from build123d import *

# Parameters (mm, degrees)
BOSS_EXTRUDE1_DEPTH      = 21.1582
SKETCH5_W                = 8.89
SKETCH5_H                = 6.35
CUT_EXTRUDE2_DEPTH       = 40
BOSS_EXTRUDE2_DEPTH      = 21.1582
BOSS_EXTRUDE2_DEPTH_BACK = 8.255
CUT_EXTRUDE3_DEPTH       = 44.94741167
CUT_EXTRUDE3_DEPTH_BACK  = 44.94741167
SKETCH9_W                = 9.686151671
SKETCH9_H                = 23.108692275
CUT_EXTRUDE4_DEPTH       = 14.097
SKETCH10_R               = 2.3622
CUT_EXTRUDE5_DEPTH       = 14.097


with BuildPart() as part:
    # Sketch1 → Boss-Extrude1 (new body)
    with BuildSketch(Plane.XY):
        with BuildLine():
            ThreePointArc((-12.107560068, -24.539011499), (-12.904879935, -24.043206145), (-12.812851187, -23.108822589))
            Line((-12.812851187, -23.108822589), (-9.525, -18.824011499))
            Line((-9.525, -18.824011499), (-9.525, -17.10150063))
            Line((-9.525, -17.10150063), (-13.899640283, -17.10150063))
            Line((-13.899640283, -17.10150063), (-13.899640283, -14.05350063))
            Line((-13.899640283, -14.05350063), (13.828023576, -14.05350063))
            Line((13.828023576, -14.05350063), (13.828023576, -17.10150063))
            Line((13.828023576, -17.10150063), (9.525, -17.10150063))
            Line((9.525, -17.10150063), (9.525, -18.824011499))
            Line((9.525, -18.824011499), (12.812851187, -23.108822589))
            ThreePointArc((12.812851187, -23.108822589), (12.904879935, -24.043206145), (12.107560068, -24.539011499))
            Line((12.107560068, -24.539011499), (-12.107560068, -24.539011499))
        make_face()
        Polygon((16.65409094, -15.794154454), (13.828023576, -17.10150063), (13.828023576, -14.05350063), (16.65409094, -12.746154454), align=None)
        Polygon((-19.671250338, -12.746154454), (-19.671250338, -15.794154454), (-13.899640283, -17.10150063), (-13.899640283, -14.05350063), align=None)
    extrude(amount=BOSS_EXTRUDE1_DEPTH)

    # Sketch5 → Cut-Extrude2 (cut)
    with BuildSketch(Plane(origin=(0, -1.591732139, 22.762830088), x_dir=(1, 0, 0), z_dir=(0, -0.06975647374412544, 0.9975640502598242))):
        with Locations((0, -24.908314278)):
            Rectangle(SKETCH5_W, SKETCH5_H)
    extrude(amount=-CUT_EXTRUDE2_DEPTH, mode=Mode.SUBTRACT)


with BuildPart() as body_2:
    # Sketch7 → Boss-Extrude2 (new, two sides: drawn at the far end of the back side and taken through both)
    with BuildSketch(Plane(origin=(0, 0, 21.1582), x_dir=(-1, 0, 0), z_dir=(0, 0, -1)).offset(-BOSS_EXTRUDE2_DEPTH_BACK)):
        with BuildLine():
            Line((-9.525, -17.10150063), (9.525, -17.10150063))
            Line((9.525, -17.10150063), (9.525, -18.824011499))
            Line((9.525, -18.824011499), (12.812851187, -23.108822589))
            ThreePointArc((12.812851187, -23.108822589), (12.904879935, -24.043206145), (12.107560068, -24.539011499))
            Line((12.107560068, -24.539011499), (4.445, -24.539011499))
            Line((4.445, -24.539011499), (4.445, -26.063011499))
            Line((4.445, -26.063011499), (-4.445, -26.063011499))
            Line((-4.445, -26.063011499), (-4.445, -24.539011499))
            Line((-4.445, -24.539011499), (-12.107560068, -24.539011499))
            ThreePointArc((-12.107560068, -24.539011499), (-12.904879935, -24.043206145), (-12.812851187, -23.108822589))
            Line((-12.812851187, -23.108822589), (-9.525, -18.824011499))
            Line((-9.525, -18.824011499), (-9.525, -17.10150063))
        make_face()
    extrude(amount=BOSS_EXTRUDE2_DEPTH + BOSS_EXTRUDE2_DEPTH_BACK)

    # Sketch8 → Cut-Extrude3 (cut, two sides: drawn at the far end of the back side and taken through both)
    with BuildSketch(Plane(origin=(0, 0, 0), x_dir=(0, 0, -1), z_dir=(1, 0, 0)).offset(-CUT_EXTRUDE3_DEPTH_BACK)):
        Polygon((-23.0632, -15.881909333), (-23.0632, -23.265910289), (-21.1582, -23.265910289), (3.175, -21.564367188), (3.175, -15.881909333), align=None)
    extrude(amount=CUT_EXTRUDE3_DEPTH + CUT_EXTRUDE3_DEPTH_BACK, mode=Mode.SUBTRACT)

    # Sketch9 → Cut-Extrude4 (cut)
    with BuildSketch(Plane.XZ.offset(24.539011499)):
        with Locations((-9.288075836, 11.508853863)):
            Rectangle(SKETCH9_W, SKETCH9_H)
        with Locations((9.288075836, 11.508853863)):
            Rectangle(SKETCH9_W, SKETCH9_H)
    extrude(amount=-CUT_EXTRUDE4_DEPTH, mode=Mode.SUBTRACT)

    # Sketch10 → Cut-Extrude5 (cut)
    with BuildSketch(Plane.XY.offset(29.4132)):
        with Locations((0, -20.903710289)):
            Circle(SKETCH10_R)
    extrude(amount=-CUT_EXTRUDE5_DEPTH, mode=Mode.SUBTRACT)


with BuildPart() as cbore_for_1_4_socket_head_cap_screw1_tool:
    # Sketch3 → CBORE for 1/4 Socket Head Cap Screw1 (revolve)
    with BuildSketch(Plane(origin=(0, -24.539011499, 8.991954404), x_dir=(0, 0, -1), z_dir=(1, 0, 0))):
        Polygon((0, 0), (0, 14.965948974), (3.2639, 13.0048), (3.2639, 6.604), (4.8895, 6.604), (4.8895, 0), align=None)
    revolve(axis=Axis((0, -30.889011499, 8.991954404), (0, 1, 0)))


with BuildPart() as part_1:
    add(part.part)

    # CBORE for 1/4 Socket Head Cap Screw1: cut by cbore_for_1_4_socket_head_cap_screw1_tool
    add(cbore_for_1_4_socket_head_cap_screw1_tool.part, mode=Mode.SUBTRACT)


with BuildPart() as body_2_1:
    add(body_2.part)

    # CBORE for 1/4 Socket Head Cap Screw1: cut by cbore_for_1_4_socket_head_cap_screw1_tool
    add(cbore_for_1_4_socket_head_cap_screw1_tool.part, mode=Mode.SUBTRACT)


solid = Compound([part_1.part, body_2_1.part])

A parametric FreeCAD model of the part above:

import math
import FreeCAD as App
import Part
import Sketcher
Q = App.Units.Quantity


def add_polygon(sketch, points):
    """Adds a closed chain of lines whose ends are joined by coincident constraints."""
    first, n = sketch.GeometryCount, len(points)
    for a, b in zip(points, points[1:] + points[:1]):
        sketch.addGeometry(Part.LineSegment(App.Vector(*a, 0), App.Vector(*b, 0)), False)
    for i in range(n):
        sketch.addConstraint(Sketcher.Constraint("Coincident", first + i, 2, first + (i + 1) % n, 1))

doc = App.newDocument("Part")
body = doc.addObject("PartDesign::Body", "Body")

# Sketch on XY plane
sketch1 = doc.addObject("Sketcher::SketchObject", "Sketch")
body.addObject(sketch1)
sketch1.AttachmentSupport = (doc.XY_Plane, [""])
sketch1.MapMode = "FlatFace"
sketch1.addGeometry(Part.ArcOfCircle(Part.Circle(App.Vector(-12.1, -23.7, 0), App.Vector(0, 0, 1), 0.9), math.radians(142), math.radians(270)), False)
sketch1.addGeometry(Part.LineSegment(App.Vector(-12.1, -24.5, 0), App.Vector(12.1, -24.5, 0)), False)
sketch1.addGeometry(Part.ArcOfCircle(Part.Circle(App.Vector(12.1, -23.7, 0), App.Vector(0, 0, 1), 0.9), math.radians(-90), math.radians(38)), False)
sketch1.addGeometry(Part.LineSegment(App.Vector(12.8, -23.1, 0), App.Vector(9.5, -18.8, 0)), False)
sketch1.addGeometry(Part.LineSegment(App.Vector(9.5, -18.8, 0), App.Vector(9.5, -17.1, 0)), False)
sketch1.addGeometry(Part.LineSegment(App.Vector(9.5, -17.1, 0), App.Vector(13.8, -17.1, 0)), False)
sketch1.addGeometry(Part.LineSegment(App.Vector(13.8, -17.1, 0), App.Vector(16.7, -15.8, 0)), False)
sketch1.addGeometry(Part.LineSegment(App.Vector(16.7, -15.8, 0), App.Vector(16.7, -12.7, 0)), False)
sketch1.addGeometry(Part.LineSegment(App.Vector(16.7, -12.7, 0), App.Vector(13.8, -14.1, 0)), False)
sketch1.addGeometry(Part.LineSegment(App.Vector(13.8, -14.1, 0), App.Vector(-13.9, -14.1, 0)), False)
sketch1.addGeometry(Part.LineSegment(App.Vector(-13.9, -14.1, 0), App.Vector(-19.7, -12.7, 0)), False)
sketch1.addGeometry(Part.LineSegment(App.Vector(-19.7, -12.7, 0), App.Vector(-19.7, -15.8, 0)), False)
sketch1.addGeometry(Part.LineSegment(App.Vector(-19.7, -15.8, 0), App.Vector(-13.9, -17.1, 0)), False)
sketch1.addGeometry(Part.LineSegment(App.Vector(-13.9, -17.1, 0), App.Vector(-9.5, -17.1, 0)), False)
sketch1.addGeometry(Part.LineSegment(App.Vector(-9.5, -17.1, 0), App.Vector(-9.5, -18.8, 0)), False)
sketch1.addGeometry(Part.LineSegment(App.Vector(-9.5, -18.8, 0), App.Vector(-12.8, -23.1, 0)), False)
sketch1.addConstraint(Sketcher.Constraint("Tangent", 0, 2, 1, 1))
sketch1.addConstraint(Sketcher.Constraint("Tangent", 1, 2, 2, 1))
sketch1.addConstraint(Sketcher.Constraint("Tangent", 2, 2, 3, 1))
sketch1.addConstraint(Sketcher.Constraint("Coincident", 3, 2, 4, 1))
sketch1.addConstraint(Sketcher.Constraint("Coincident", 4, 2, 5, 1))
sketch1.addConstraint(Sketcher.Constraint("Coincident", 5, 2, 6, 1))
sketch1.addConstraint(Sketcher.Constraint("Coincident", 6, 2, 7, 1))
sketch1.addConstraint(Sketcher.Constraint("Coincident", 7, 2, 8, 1))
sketch1.addConstraint(Sketcher.Constraint("Coincident", 8, 2, 9, 1))
sketch1.addConstraint(Sketcher.Constraint("Coincident", 9, 2, 10, 1))
sketch1.addConstraint(Sketcher.Constraint("Coincident", 10, 2, 11, 1))
sketch1.addConstraint(Sketcher.Constraint("Coincident", 11, 2, 12, 1))
sketch1.addConstraint(Sketcher.Constraint("Coincident", 12, 2, 13, 1))
sketch1.addConstraint(Sketcher.Constraint("Coincident", 13, 2, 14, 1))
sketch1.addConstraint(Sketcher.Constraint("Coincident", 14, 2, 15, 1))
sketch1.addConstraint(Sketcher.Constraint("Tangent", 15, 2, 0, 1))
sketch1.addConstraint(Sketcher.Constraint("Horizontal", 1))
sketch1.addConstraint(Sketcher.Constraint("Vertical", 4))
sketch1.addConstraint(Sketcher.Constraint("Horizontal", 5))
sketch1.addConstraint(Sketcher.Constraint("Vertical", 7))
sketch1.addConstraint(Sketcher.Constraint("Horizontal", 9))
sketch1.addConstraint(Sketcher.Constraint("Vertical", 11))
sketch1.addConstraint(Sketcher.Constraint("Horizontal", 13))
sketch1.addConstraint(Sketcher.Constraint("Vertical", 14))
sketch1.addConstraint(Sketcher.Constraint("Equal", 0, 2))
sketch1.addConstraint(Sketcher.Constraint("Symmetric", 4, 2, 13, 2, -2))
sketch1.addConstraint(Sketcher.Constraint("Symmetric", 2, 2, 15, 2, -2))
sketch1.addConstraint(Sketcher.Constraint("Parallel", 6, 8))
sketch1.addConstraint(Sketcher.Constraint("Parallel", 10, 12))
sketch1.addConstraint(Sketcher.Constraint("Horizontal", 7, 2, 10, 2))
sketch1.addConstraint(Sketcher.Constraint("Horizontal", 6, 2, 11, 2))
sketch1.addConstraint(Sketcher.Constraint("Vertical", 5, 2, 8, 2))
sketch1.addConstraint(Sketcher.Constraint("Radius", 0, Q("0.035 in")))
sketch1.addConstraint(Sketcher.Constraint("DistanceY", 7, 1, 7, 2, Q("0.12 in")))
sketch1.addConstraint(Sketcher.Constraint("Angle", 3, Q("127.5 deg")))
sketch1.addConstraint(Sketcher.Constraint("DistanceY", 2, 3, 3, 2, Q("0.19 in")))
sketch1.addConstraint(Sketcher.Constraint("DistanceX", -1, 1, 3, 2, Q("0.375 in")))
sketch1.addConstraint(Sketcher.Constraint("DistanceX", 13, 1, 13, 2, Q("4.37464 mm")))
sketch1.addConstraint(Sketcher.Constraint("DistanceY", 4, 1, 4, 2, Q("1.722511 mm")))
sketch1.addConstraint(Sketcher.Constraint("DistanceY", 4, 2, -1, 1, Q("17.101501 mm")))
sketch1.addConstraint(Sketcher.Constraint("Distance", 6, Q("3.11381 mm")))
sketch1.addConstraint(Sketcher.Constraint("DistanceX", 5, 1, 5, 2, Q("4.303024 mm")))
sketch1.addConstraint(Sketcher.Constraint("DistanceX", -1, 1, 6, 2, Q("16.654091 mm")))
sketch1.addConstraint(Sketcher.Constraint("DistanceX", 10, 2, -1, 1, Q("19.67125 mm")))
pad1 = doc.addObject("PartDesign::Pad", "Pad")
body.addObject(pad1)
pad1.Profile = sketch1
pad1.Length = Q("0.833 in")

# Sketch on an angled plane
sketch2 = doc.addObject("Sketcher::SketchObject", "Sketch001")
body.addObject(sketch2)
sketch2.Placement = App.Placement(App.Vector(0, -1.591732, 22.76283), App.Rotation(App.Vector(1, 0, 0), App.Vector(0, 0.99756405, 0.069756474), App.Vector(0, -0.069756474, 0.99756405), "ZXY"))
add_polygon(sketch2, [(-4, -22), (-4, -28), (4, -28), (4, -22)])  # lines 0-3
sketch2.addConstraint(Sketcher.Constraint("Vertical", 0))
sketch2.addConstraint(Sketcher.Constraint("Horizontal", 1))
sketch2.addConstraint(Sketcher.Constraint("Vertical", 2))
sketch2.addConstraint(Sketcher.Constraint("Horizontal", 3))
sketch2.addConstraint(Sketcher.Constraint("DistanceX", 1, 1, 1, 2, Q("0.35 in")))
sketch2.addConstraint(Sketcher.Constraint("DistanceY", 0, 2, 0, 1, Q("0.25 in")))
sketch2.addConstraint(Sketcher.Constraint("DistanceX", 0, 2, -1, 1, Q("0.175 in")))
sketch2.addConstraint(Sketcher.Constraint("DistanceY", 0, 2, -1, 1, Q("28.083314 mm")))
pocket1 = doc.addObject("PartDesign::Pocket", "Pocket")
body.addObject(pocket1)
pocket1.Profile = sketch2
pocket1.Length = 40
body2 = doc.addObject("PartDesign::Body", "Body001")

# Sketch on XY plane
sketch3 = doc.addObject("Sketcher::SketchObject", "Sketch002")
body2.addObject(sketch3)
sketch3.AttachmentSupport = (doc.getObject("XY_Plane001"), [""])
sketch3.MapMode = "FlatFace"
sketch3.AttachmentOffset = App.Placement(App.Vector(0, 0, 0.833 * 25.4), App.Rotation())
sketch3.addGeometry(Part.LineSegment(App.Vector(-9.5, -17.1, 0), App.Vector(9.5, -17.1, 0)), False)
sketch3.addGeometry(Part.LineSegment(App.Vector(9.5, -17.1, 0), App.Vector(9.5, -18.8, 0)), False)
sketch3.addGeometry(Part.LineSegment(App.Vector(9.5, -18.8, 0), App.Vector(12.8, -23.1, 0)), False)
sketch3.addGeometry(Part.ArcOfCircle(Part.Circle(App.Vector(12.1, -23.7, 0), App.Vector(0, 0, 1), 0.9), math.radians(-90), math.radians(38)), False)
sketch3.addGeometry(Part.LineSegment(App.Vector(12.1, -24.5, 0), App.Vector(4.4, -24.5, 0)), False)
sketch3.addGeometry(Part.LineSegment(App.Vector(4.4, -24.5, 0), App.Vector(4.4, -26.1, 0)), False)
sketch3.addGeometry(Part.LineSegment(App.Vector(4.4, -26.1, 0), App.Vector(-4.4, -26.1, 0)), False)
sketch3.addGeometry(Part.LineSegment(App.Vector(-4.4, -26.1, 0), App.Vector(-4.4, -24.5, 0)), False)
sketch3.addGeometry(Part.LineSegment(App.Vector(-4.4, -24.5, 0), App.Vector(-12.1, -24.5, 0)), False)
sketch3.addGeometry(Part.ArcOfCircle(Part.Circle(App.Vector(-12.1, -23.7, 0), App.Vector(0, 0, 1), 0.9), math.radians(142), math.radians(270)), False)
sketch3.addGeometry(Part.LineSegment(App.Vector(-12.8, -23.1, 0), App.Vector(-9.5, -18.8, 0)), False)
sketch3.addGeometry(Part.LineSegment(App.Vector(-9.5, -18.8, 0), App.Vector(-9.5, -17.1, 0)), False)
sketch3.addConstraint(Sketcher.Constraint("Coincident", 0, 2, 1, 1))
sketch3.addConstraint(Sketcher.Constraint("Coincident", 1, 2, 2, 1))
sketch3.addConstraint(Sketcher.Constraint("Tangent", 2, 2, 3, 2))
sketch3.addConstraint(Sketcher.Constraint("Tangent", 3, 1, 4, 1))
sketch3.addConstraint(Sketcher.Constraint("Coincident", 4, 2, 5, 1))
sketch3.addConstraint(Sketcher.Constraint("Coincident", 5, 2, 6, 1))
sketch3.addConstraint(Sketcher.Constraint("Coincident", 6, 2, 7, 1))
sketch3.addConstraint(Sketcher.Constraint("Coincident", 7, 2, 8, 1))
sketch3.addConstraint(Sketcher.Constraint("Tangent", 8, 2, 9, 2))
sketch3.addConstraint(Sketcher.Constraint("Tangent", 9, 1, 10, 1))
sketch3.addConstraint(Sketcher.Constraint("Coincident", 10, 2, 11, 1))
sketch3.addConstraint(Sketcher.Constraint("Coincident", 11, 2, 0, 1))
sketch3.addConstraint(Sketcher.Constraint("Horizontal", 0))
sketch3.addConstraint(Sketcher.Constraint("Vertical", 1))
sketch3.addConstraint(Sketcher.Constraint("Horizontal", 4))
sketch3.addConstraint(Sketcher.Constraint("Vertical", 5))
sketch3.addConstraint(Sketcher.Constraint("Horizontal", 6))
sketch3.addConstraint(Sketcher.Constraint("Vertical", 7))
sketch3.addConstraint(Sketcher.Constraint("Horizontal", 8))
sketch3.addConstraint(Sketcher.Constraint("Vertical", 11))
sketch3.addConstraint(Sketcher.Constraint("Equal", 3, 9))
sketch3.addConstraint(Sketcher.Constraint("Symmetric", 3, 3, 9, 3, -2))
sketch3.addConstraint(Sketcher.Constraint("Symmetric", 1, 2, 10, 2, -2))
sketch3.addConstraint(Sketcher.Constraint("Equal", 4, 8))
sketch3.addConstraint(Sketcher.Constraint("Radius", 3, Q("0.035 in")))
sketch3.addConstraint(Sketcher.Constraint("DistanceX", 0, 1, 0, 2, Q("0.75 in")))
sketch3.addConstraint(Sketcher.Constraint("DistanceX", 6, 2, 6, 1, Q("0.35 in")))
sketch3.addConstraint(Sketcher.Constraint("DistanceY", 5, 2, 5, 1, Q("0.06 in")))
sketch3.addConstraint(Sketcher.Constraint("Angle", 2, Q("-52.5 deg")))
sketch3.addConstraint(Sketcher.Constraint("DistanceY", 3, 3, 1, 2, Q("0.19 in")))
sketch3.addConstraint(Sketcher.Constraint("DistanceY", 1, 2, 1, 1, Q("1.722511 mm")))
sketch3.addConstraint(Sketcher.Constraint("DistanceY", 0, 2, -1, 1, Q("17.101501 mm")))
pad2 = doc.addObject("PartDesign::Pad", "Pad001")
body2.addObject(pad2)
pad2.Profile = sketch3
pad2.Type = "TwoLengths"
pad2.Length = Q("0.833 in")
pad2.Length2 = Q("0.325 in")
pad2.Reversed = True

# Sketch on YZ plane
sketch4 = doc.addObject("Sketcher::SketchObject", "Sketch003")
body2.addObject(sketch4)
sketch4.AttachmentSupport = (doc.getObject("YZ_Plane001"), [""])
sketch4.MapMode = "FlatFace"
add_polygon(sketch4, [(-15.9, 23.1), (-23.3, 23.1), (-23.3, 21.2), (-21.6, -3.2), (-15.9, -3.2)])  # lines 0-4
sketch4.addConstraint(Sketcher.Constraint("Horizontal", 0))
sketch4.addConstraint(Sketcher.Constraint("Vertical", 1))
sketch4.addConstraint(Sketcher.Constraint("Horizontal", 3))
sketch4.addConstraint(Sketcher.Constraint("Vertical", 4))
sketch4.addConstraint(Sketcher.Constraint("Angle", 2, Q("-86 deg")))
sketch4.addConstraint(Sketcher.Constraint("DistanceY", 1, 2, 1, 1, Q("0.075 in")))
sketch4.addConstraint(Sketcher.Constraint("DistanceY", 4, 1, 4, 2, Q("1.033 in")))
sketch4.addConstraint(Sketcher.Constraint("DistanceY", -1, 1, 0, 2, Q("0.908 in")))
sketch4.addConstraint(Sketcher.Constraint("DistanceX", 0, 2, 0, 1, Q("7.384001 mm")))
sketch4.addConstraint(Sketcher.Constraint("DistanceX", 0, 2, -1, 1, Q("23.26591 mm")))
pocket2 = doc.addObject("PartDesign::Pocket", "Pocket001")
body2.addObject(pocket2)
pocket2.Profile = sketch4
pocket2.Type = "ThroughAll"
pocket2.Midplane = True

# Sketch on XZ plane
sketch5 = doc.addObject("Sketcher::SketchObject", "Sketch004")
body2.addObject(sketch5)
sketch5.AttachmentSupport = (doc.getObject("XZ_Plane001"), [""])
sketch5.MapMode = "FlatFace"
sketch5.AttachmentOffset = App.Placement(App.Vector(0, 0, 24.539011), App.Rotation())
add_polygon(sketch5, [(-14, 23), (-14, 0), (-4, 0), (-4, 23)])  # lines 0-3
add_polygon(sketch5, [(4, 23), (4, 0), (14, 0), (14, 23)])  # lines 4-7
sketch5.addConstraint(Sketcher.Constraint("Vertical", 0))
sketch5.addConstraint(Sketcher.Constraint("Horizontal", 1))
sketch5.addConstraint(Sketcher.Constraint("Vertical", 2))
sketch5.addConstraint(Sketcher.Constraint("Horizontal", 3))
sketch5.addConstraint(Sketcher.Constraint("Vertical", 4))
sketch5.addConstraint(Sketcher.Constraint("Horizontal", 5))
sketch5.addConstraint(Sketcher.Constraint("Vertical", 6))
sketch5.addConstraint(Sketcher.Constraint("Horizontal", 7))
sketch5.addConstraint(Sketcher.Constraint("Symmetric", 1, 2, 4, 2, -2))
sketch5.addConstraint(Sketcher.Constraint("Symmetric", 3, 2, 6, 2, -2))
sketch5.addConstraint(Sketcher.Constraint("DistanceX", 1, 2, 4, 2, Q("0.35 in")))
sketch5.addConstraint(Sketcher.Constraint("DistanceY", -1, 1, 2, 2, Q("0.908 in")))
sketch5.addConstraint(Sketcher.Constraint("DistanceX", 1, 1, 1, 2, Q("9.686152 mm")))
sketch5.addConstraint(Sketcher.Constraint("DistanceY", 0, 2, 0, 1, Q("23.108692 mm")))
pocket3 = doc.addObject("PartDesign::Pocket", "Pocket002")
body2.addObject(pocket3)
pocket3.Profile = sketch5
pocket3.Length = Q("0.555 in")

# Sketch on XY plane
sketch6 = doc.addObject("Sketcher::SketchObject", "Sketch005")
body2.addObject(sketch6)
sketch6.AttachmentSupport = (doc.getObject("XY_Plane001"), [""])
sketch6.MapMode = "FlatFace"
sketch6.AttachmentOffset = App.Placement(App.Vector(0, 0, 1.158 * 25.4), App.Rotation())
sketch6.addGeometry(Part.Circle(App.Vector(0, -20.9, 0), App.Vector(0, 0, 1), 2.4), False)
sketch6.addConstraint(Sketcher.Constraint("PointOnObject", 0, 3, -2))
sketch6.addConstraint(Sketcher.Constraint("Diameter", 0, Q("0.186 in")))
sketch6.addConstraint(Sketcher.Constraint("DistanceY", 0, 3, -1, 1, Q("20.90371 mm")))
pocket4 = doc.addObject("PartDesign::Pocket", "Pocket003")
body2.addObject(pocket4)
pocket4.Profile = sketch6
pocket4.Length = Q("0.555 in")
body3 = doc.addObject("PartDesign::Body", "Body002")

# Sketch on YZ plane
sketch7 = doc.addObject("Sketcher::SketchObject", "Sketch006")
body3.addObject(sketch7)
sketch7.AttachmentSupport = (doc.getObject("YZ_Plane002"), [""])
sketch7.MapMode = "FlatFace"
add_polygon(sketch7, [(-9.6, 9), (-24.5, 9), (-24.5, 4.1), (-17.9, 4.1), (-17.9, 5.7), (-11.5, 5.7)])  # lines 0-5
sketch7.addGeometry(Part.LineSegment(App.Vector(-24.5, 9, 0), App.Vector(-9.6, 9, 0)), True)  # axis
sketch7.addConstraint(Sketcher.Constraint("Horizontal", 0))
sketch7.addConstraint(Sketcher.Constraint("Vertical", 1))
sketch7.addConstraint(Sketcher.Constraint("Horizontal", 2))
sketch7.addConstraint(Sketcher.Constraint("Vertical", 3))
sketch7.addConstraint(Sketcher.Constraint("Horizontal", 4))
sketch7.addConstraint(Sketcher.Constraint("Horizontal", 6))
sketch7.addConstraint(Sketcher.Constraint("Coincident", 6, 1, 0, 2))
sketch7.addConstraint(Sketcher.Constraint("Equal", 0, 6))
sketch7.addConstraint(Sketcher.Constraint("Angle", 5, Q("59 deg")))
sketch7.addConstraint(Sketcher.Constraint("DistanceX", 2, 1, 2, 2, Q("0.26 in")))
sketch7.addConstraint(Sketcher.Constraint("DistanceX", 4, 1, 4, 2, Q("0.252 in")))
sketch7.addConstraint(Sketcher.Constraint("DistanceY", 3, 1, 3, 2, Q("0.064 in")))
sketch7.addConstraint(Sketcher.Constraint("DistanceY", 1, 2, 1, 1, Q("0.1925 in")))
sketch7.addConstraint(Sketcher.Constraint("DistanceX", 0, 2, -1, 1, Q("24.539011 mm")))
sketch7.addConstraint(Sketcher.Constraint("DistanceY", -1, 1, 0, 2, Q("8.991954 mm")))
revolution = doc.addObject("PartDesign::Revolution", "Revolution")
body3.addObject(revolution)
revolution.Profile = sketch7
revolution.ReferenceAxis = (sketch7, ["Axis0"])
revolution.Angle = 360
doc.recompute()

body4 = doc.addObject("PartDesign::Body", "Body003")
body4.BaseFeature = body3
boolean = doc.addObject("PartDesign::Boolean", "Boolean")
body.addObject(boolean)
boolean.Type = "Cut"
boolean.addObjects([body4])
doc.recompute()

boolean2 = doc.addObject("PartDesign::Boolean", "Boolean001")
body2.addObject(boolean2)
boolean2.Type = "Cut"
boolean2.addObjects([body3])

doc.recompute()
